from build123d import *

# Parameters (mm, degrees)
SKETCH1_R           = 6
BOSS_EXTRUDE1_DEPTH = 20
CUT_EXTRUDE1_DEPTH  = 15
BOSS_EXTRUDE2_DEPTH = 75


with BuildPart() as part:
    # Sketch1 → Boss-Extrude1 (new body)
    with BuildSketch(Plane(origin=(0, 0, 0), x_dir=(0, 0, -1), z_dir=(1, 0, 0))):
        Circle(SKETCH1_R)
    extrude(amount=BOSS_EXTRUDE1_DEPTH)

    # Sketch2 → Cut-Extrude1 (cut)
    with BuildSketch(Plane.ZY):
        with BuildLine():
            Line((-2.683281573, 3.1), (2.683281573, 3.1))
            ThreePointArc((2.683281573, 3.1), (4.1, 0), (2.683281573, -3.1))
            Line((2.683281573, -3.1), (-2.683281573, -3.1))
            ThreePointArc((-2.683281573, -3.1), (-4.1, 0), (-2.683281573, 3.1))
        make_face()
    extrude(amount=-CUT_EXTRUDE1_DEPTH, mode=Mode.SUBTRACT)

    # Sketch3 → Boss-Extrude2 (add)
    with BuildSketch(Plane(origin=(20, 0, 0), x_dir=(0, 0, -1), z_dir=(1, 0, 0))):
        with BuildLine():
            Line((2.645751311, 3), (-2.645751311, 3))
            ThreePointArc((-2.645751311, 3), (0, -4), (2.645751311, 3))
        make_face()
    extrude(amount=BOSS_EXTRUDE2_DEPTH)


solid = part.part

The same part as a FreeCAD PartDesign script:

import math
import FreeCAD as App
import Part
import Sketcher
Q = App.Units.Quantity

doc = App.newDocument("Part")
body = doc.addObject("PartDesign::Body", "Body")

# Sketch on YZ plane
sketch1 = doc.addObject("Sketcher::SketchObject", "Sketch")
body.addObject(sketch1)
sketch1.AttachmentSupport = (doc.YZ_Plane, [""])
sketch1.MapMode = "FlatFace"
sketch1.addGeometry(Part.Circle(App.Vector(0, 0, 0), App.Vector(0, 0, 1), 6), False)
sketch1.addConstraint(Sketcher.Constraint("Coincident", 0, 3, -1, 1))
sketch1.addConstraint(Sketcher.Constraint("Diameter", 0, Q("12 mm")))
pad1 = doc.addObject("PartDesign::Pad", "Pad")
body.addObject(pad1)
pad1.Profile = sketch1
pad1.Length = 20

# Sketch on YZ plane
sketch2 = doc.addObject("Sketcher::SketchObject", "Sketch001")
body.addObject(sketch2)
sketch2.AttachmentSupport = (doc.YZ_Plane, [""])
sketch2.MapMode = "FlatFace"
sketch2.addGeometry(Part.LineSegment(App.Vector(3.1, 2.7, 0), App.Vector(3.1, -2.7, 0)), False)
sketch2.addGeometry(Part.ArcOfCircle(Part.Circle(App.Vector(0, 0, 0), App.Vector(0, 0, 1), 4.1), math.radians(-139), math.radians(-41)), False)
sketch2.addGeometry(Part.LineSegment(App.Vector(-3.1, -2.7, 0), App.Vector(-3.1, 2.7, 0)), False)
sketch2.addGeometry(Part.ArcOfCircle(Part.Circle(App.Vector(0, 0, 0), App.Vector(0, 0, 1), 4.1), math.radians(41), math.radians(139)), False)
sketch2.addConstraint(Sketcher.Constraint("Coincident", 0, 2, 1, 2))
sketch2.addConstraint(Sketcher.Constraint("Coincident", 1, 1, 2, 1))
sketch2.addConstraint(Sketcher.Constraint("Coincident", 2, 2, 3, 2))
sketch2.addConstraint(Sketcher.Constraint("Coincident", 3, 1, 0, 1))
sketch2.addConstraint(Sketcher.Constraint("Vertical", 0))
sketch2.addConstraint(Sketcher.Constraint("Vertical", 2))
sketch2.addConstraint(Sketcher.Constraint("Coincident", 1, 3, -1, 1))
sketch2.addConstraint(Sketcher.Constraint("Coincident", 3, 3, -1, 1))
sketch2.addConstraint(Sketcher.Constraint("Equal", 1, 3))
sketch2.addConstraint(Sketcher.Constraint("Horizontal", 0, 2, 1, 1))
sketch2.addConstraint(Sketcher.Constraint("Radius", 1, Q("4.1 mm")))
sketch2.addConstraint(Sketcher.Constraint("DistanceX", -1, 1, 0, 2, Q("3.1 mm")))
pocket1 = doc.addObject("PartDesign::Pocket", "Pocket")
body.addObject(pocket1)
pocket1.Profile = sketch2
pocket1.Length = 15
pocket1.Reversed = True

# Sketch on YZ plane
sketch3 = doc.addObject("Sketcher::SketchObject", "Sketch002")
body.addObject(sketch3)
sketch3.AttachmentSupport = (doc.YZ_Plane, [""])
sketch3.MapMode = "FlatFace"
sketch3.AttachmentOffset = App.Placement(App.Vector(0, 0, 20), App.Rotation())
sketch3.addGeometry(Part.LineSegment(App.Vector(3, -2.6, 0), App.Vector(3, 2.6, 0)), False)
sketch3.addGeometry(Part.ArcOfCircle(Part.Circle(App.Vector(0, 0, 0), App.Vector(0, 0, 1), 4), math.radians(41), math.radians(319)), False)
sketch3.addConstraint(Sketcher.Constraint("Coincident", 0, 1, 1, 2))
sketch3.addConstraint(Sketcher.Constraint("Coincident", 1, 1, 0, 2))
sketch3.addConstraint(Sketcher.Constraint("Vertical", 0))
sketch3.addConstraint(Sketcher.Constraint("Coincident", 1, 3, -1, 1))
sketch3.addConstraint(Sketcher.Constraint("Radius", 1, Q("4 mm")))
sketch3.addConstraint(Sketcher.Constraint("DistanceX", -1, 1, 0, 1, Q("3 mm")))
pad2 = doc.addObject("PartDesign::Pad", "Pad001")
body.addObject(pad2)
pad2.Profile = sketch3
pad2.Length = 75

doc.recompute()
